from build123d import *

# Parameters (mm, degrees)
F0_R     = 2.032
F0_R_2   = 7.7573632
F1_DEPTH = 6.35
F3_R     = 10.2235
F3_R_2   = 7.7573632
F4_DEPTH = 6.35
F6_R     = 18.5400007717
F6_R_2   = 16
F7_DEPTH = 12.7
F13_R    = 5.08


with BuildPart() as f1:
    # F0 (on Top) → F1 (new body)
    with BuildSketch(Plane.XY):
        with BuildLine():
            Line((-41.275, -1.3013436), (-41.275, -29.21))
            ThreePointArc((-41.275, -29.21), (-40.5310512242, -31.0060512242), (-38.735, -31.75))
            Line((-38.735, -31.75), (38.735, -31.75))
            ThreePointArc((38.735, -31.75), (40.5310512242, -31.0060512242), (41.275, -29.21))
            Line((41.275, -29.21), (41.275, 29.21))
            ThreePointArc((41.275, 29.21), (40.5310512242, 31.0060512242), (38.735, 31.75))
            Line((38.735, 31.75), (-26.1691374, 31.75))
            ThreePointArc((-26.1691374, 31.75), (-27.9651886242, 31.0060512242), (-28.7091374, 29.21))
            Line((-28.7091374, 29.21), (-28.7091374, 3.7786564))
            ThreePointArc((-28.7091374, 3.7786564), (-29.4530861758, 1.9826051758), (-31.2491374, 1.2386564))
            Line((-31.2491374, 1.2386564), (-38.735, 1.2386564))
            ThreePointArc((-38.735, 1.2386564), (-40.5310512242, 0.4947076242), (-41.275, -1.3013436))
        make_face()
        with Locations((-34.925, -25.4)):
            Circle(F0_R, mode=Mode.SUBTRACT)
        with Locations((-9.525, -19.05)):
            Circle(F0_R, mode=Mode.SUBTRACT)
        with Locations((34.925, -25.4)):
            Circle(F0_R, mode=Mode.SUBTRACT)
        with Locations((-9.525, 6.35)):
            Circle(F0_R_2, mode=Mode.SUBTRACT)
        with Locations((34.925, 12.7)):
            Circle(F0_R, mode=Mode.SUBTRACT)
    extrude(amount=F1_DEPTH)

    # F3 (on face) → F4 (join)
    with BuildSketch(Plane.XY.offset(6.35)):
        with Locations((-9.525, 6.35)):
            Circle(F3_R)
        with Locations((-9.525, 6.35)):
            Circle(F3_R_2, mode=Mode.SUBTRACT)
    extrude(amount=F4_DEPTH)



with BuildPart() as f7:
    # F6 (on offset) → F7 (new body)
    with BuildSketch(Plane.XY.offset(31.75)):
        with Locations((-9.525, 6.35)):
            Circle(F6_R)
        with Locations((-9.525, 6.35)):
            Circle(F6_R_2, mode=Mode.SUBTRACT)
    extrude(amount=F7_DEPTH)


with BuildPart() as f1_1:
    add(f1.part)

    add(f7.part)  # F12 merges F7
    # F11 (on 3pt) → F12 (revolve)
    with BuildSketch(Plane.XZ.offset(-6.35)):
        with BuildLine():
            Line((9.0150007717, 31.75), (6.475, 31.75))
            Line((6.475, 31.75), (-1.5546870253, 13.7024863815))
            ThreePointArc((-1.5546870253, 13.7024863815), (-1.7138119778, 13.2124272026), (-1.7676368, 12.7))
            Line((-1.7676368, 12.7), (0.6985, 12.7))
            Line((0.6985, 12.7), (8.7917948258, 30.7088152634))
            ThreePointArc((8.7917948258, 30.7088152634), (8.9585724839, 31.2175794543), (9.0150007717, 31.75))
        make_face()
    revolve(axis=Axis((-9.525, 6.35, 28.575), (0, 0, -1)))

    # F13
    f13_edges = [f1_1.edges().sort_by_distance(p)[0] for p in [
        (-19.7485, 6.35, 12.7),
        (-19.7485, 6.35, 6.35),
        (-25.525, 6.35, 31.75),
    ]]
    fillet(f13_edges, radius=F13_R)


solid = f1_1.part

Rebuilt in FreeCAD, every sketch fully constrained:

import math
import FreeCAD as App
import Part
import Sketcher
from FreeCAD import Vector
Q = App.Units.Quantity


def edges_at(feature, points):
    """Names of the edges that pass closest to the given points."""
    edges = feature.Shape.Edges
    near = lambda p: min(range(len(edges)), key=lambda i: edges[i].distToShape(Part.Vertex(*p))[0])
    return sorted({f"Edge{near(p) + 1}" for p in points})

doc = App.newDocument("Part")
body = doc.addObject("PartDesign::Body", "Body")

sketch1 = doc.addObject("Sketcher::SketchObject", "Sketch")
body.addObject(sketch1)
sketch1.AttachmentSupport = (doc.XY_Plane, [""])
sketch1.MapMode = "FlatFace"
sketch1.addGeometry(Part.LineSegment(Vector(-41.3, -1.3, 0), Vector(-41.3, -29.2, 0)), False)
sketch1.addGeometry(Part.ArcOfCircle(Part.Circle(Vector(-38.7, -29.2, 0), Vector(0, 0, 1), 2.5), math.radians(180), math.radians(270)), False)
sketch1.addGeometry(Part.LineSegment(Vector(-38.7, -31.8, 0), Vector(38.7, -31.8, 0)), False)
sketch1.addGeometry(Part.ArcOfCircle(Part.Circle(Vector(38.7, -29.2, 0), Vector(0, 0, 1), 2.5), math.radians(-90), math.radians(0)), False)
sketch1.addGeometry(Part.LineSegment(Vector(41.3, -29.2, 0), Vector(41.3, 29.2, 0)), False)
sketch1.addGeometry(Part.ArcOfCircle(Part.Circle(Vector(38.7, 29.2, 0), Vector(0, 0, 1), 2.5), math.radians(0), math.radians(90)), False)
sketch1.addGeometry(Part.LineSegment(Vector(38.7, 31.8, 0), Vector(-26.2, 31.8, 0)), False)
sketch1.addGeometry(Part.ArcOfCircle(Part.Circle(Vector(-26.2, 29.2, 0), Vector(0, 0, 1), 2.5), math.radians(90), math.radians(180)), False)
sketch1.addGeometry(Part.LineSegment(Vector(-28.7, 29.2, 0), Vector(-28.7, 3.8, 0)), False)
sketch1.addGeometry(Part.ArcOfCircle(Part.Circle(Vector(-31.2, 3.8, 0), Vector(0, 0, 1), 2.5), math.radians(-90), math.radians(0)), False)
sketch1.addGeometry(Part.LineSegment(Vector(-31.2, 1.2, 0), Vector(-38.7, 1.2, 0)), False)
sketch1.addGeometry(Part.ArcOfCircle(Part.Circle(Vector(-38.7, -1.3, 0), Vector(0, 0, 1), 2.5), math.radians(90), math.radians(180)), False)
sketch1.addGeometry(Part.Circle(Vector(-34.9, -25.4, 0), Vector(0, 0, 1), 2), False)
sketch1.addGeometry(Part.Circle(Vector(-9.5, -19.1, 0), Vector(0, 0, 1), 2), False)
sketch1.addGeometry(Part.Circle(Vector(34.9, -25.4, 0), Vector(0, 0, 1), 2), False)
sketch1.addGeometry(Part.Circle(Vector(-9.5, 6.3, 0), Vector(0, 0, 1), 7.8), False)
sketch1.addGeometry(Part.Circle(Vector(34.9, 12.7, 0), Vector(0, 0, 1), 2), False)
sketch1.addConstraint(Sketcher.Constraint("Tangent", 0, 2, 1, 1))
sketch1.addConstraint(Sketcher.Constraint("Tangent", 1, 2, 2, 1))
sketch1.addConstraint(Sketcher.Constraint("Tangent", 2, 2, 3, 1))
sketch1.addConstraint(Sketcher.Constraint("Tangent", 3, 2, 4, 1))
sketch1.addConstraint(Sketcher.Constraint("Tangent", 4, 2, 5, 1))
sketch1.addConstraint(Sketcher.Constraint("Tangent", 5, 2, 6, 1))
sketch1.addConstraint(Sketcher.Constraint("Tangent", 6, 2, 7, 1))
sketch1.addConstraint(Sketcher.Constraint("Tangent", 7, 2, 8, 1))
sketch1.addConstraint(Sketcher.Constraint("Tangent", 8, 2, 9, 2))
sketch1.addConstraint(Sketcher.Constraint("Tangent", 9, 1, 10, 1))
sketch1.addConstraint(Sketcher.Constraint("Tangent", 10, 2, 11, 1))
sketch1.addConstraint(Sketcher.Constraint("Tangent", 11, 2, 0, 1))
sketch1.addConstraint(Sketcher.Constraint("Vertical", 0))
sketch1.addConstraint(Sketcher.Constraint("Horizontal", 2))
sketch1.addConstraint(Sketcher.Constraint("Vertical", 4))
sketch1.addConstraint(Sketcher.Constraint("Horizontal", 6))
sketch1.addConstraint(Sketcher.Constraint("Vertical", 8))
sketch1.addConstraint(Sketcher.Constraint("Horizontal", 10))
sketch1.addConstraint(Sketcher.Constraint("Equal", 1, 3))
sketch1.addConstraint(Sketcher.Constraint("Equal", 3, 5))
sketch1.addConstraint(Sketcher.Constraint("Equal", 5, 7))
sketch1.addConstraint(Sketcher.Constraint("Equal", 7, 9))
sketch1.addConstraint(Sketcher.Constraint("Equal", 9, 11))
sketch1.addConstraint(Sketcher.Constraint("Equal", 12, 13))
sketch1.addConstraint(Sketcher.Constraint("Equal", 13, 14))
sketch1.addConstraint(Sketcher.Constraint("Equal", 14, 16))
sketch1.addConstraint(Sketcher.Constraint("Symmetric", 1, 3, 5, 3, -1, 1))
sketch1.addConstraint(Sketcher.Constraint("Symmetric", 12, 3, 14, 3, -2))
sketch1.addConstraint(Sketcher.Constraint("Vertical", 13, 3, 15, 3))
sketch1.addConstraint(Sketcher.Constraint("Vertical", 14, 3, 16, 3))
sketch1.addConstraint(Sketcher.Constraint("Radius", 1, Q("0.1 in")))
sketch1.addConstraint(Sketcher.Constraint("Diameter", 12, Q("0.16 in")))
sketch1.addConstraint(Sketcher.Constraint("DistanceY", 4, 1, 4, 2, Q("2.3 in")))
sketch1.addConstraint(Sketcher.Constraint("DistanceY", 12, 3, -1, 1, Q("1 in")))
sketch1.addConstraint(Sketcher.Constraint("DistanceX", 12, 3, 13, 3, Q("1 in")))
sketch1.addConstraint(Sketcher.Constraint("DistanceY", 13, 3, 15, 3, Q("1 in")))
sketch1.addConstraint(Sketcher.Constraint("DistanceX", 13, 3, 3, 2, Q("2 in")))
sketch1.addConstraint(Sketcher.Constraint("DistanceY", 15, 3, 5, 2, Q("1 in")))
sketch1.addConstraint(Sketcher.Constraint("DistanceX", 2, 1, 2, 2, Q("3.05 in")))
sketch1.addConstraint(Sketcher.Constraint("DistanceY", -1, 1, 16, 3, Q("0.5 in")))
sketch1.addConstraint(Sketcher.Constraint("Diameter", 15, Q("15.514726 mm")))
sketch1.addConstraint(Sketcher.Constraint("DistanceX", 6, 2, 6, 1, Q("64.904137 mm")))
sketch1.addConstraint(Sketcher.Constraint("DistanceY", 0, 2, 0, 1, Q("27.908656 mm")))
pad1 = doc.addObject("PartDesign::Pad", "Pad")
body.addObject(pad1)
pad1.Profile = sketch1
pad1.Length = Q("0.25 in")

sketch2 = doc.addObject("Sketcher::SketchObject", "Sketch001")
body.addObject(sketch2)
sketch2.AttachmentSupport = (doc.XY_Plane, [""])
sketch2.MapMode = "FlatFace"
sketch2.AttachmentOffset = App.Placement(Vector(0, 0, 0.25 * 25.4), App.Rotation())
sketch2.addGeometry(Part.Circle(Vector(-10, 6, 0), Vector(0, 0, 1), 10), False)
sketch2.addGeometry(Part.Circle(Vector(-10, 6, 0), Vector(0, 0, 1), 8), False)
sketch2.addConstraint(Sketcher.Constraint("Coincident", 1, 3, 0, 3))
sketch2.addConstraint(Sketcher.Constraint("Diameter", 0, Q("0.805 in")))
sketch2.addConstraint(Sketcher.Constraint("DistanceY", -1, 1, 0, 3, Q("0.25 in")))
sketch2.addConstraint(Sketcher.Constraint("DistanceX", 0, 3, -1, 1, Q("0.375 in")))
sketch2.addConstraint(Sketcher.Constraint("Diameter", 1, Q("15.514726 mm")))
pad2 = doc.addObject("PartDesign::Pad", "Pad001")
body.addObject(pad2)
pad2.Profile = sketch2
pad2.Length = Q("0.25 in")
body2 = doc.addObject("PartDesign::Body", "Body001")

sketch3 = doc.addObject("Sketcher::SketchObject", "Sketch002")
body2.addObject(sketch3)
sketch3.AttachmentSupport = (doc.getObject("XY_Plane001"), [""])
sketch3.MapMode = "FlatFace"
sketch3.AttachmentOffset = App.Placement(Vector(0, 0, 1.25 * 25.4), App.Rotation())
sketch3.addGeometry(Part.Circle(Vector(-10, 6, 0), Vector(0, 0, 1), 19), False)
sketch3.addGeometry(Part.Circle(Vector(-10, 6, 0), Vector(0, 0, 1), 16), False)
sketch3.addConstraint(Sketcher.Constraint("Coincident", 1, 3, 0, 3))
sketch3.addConstraint(Sketcher.Constraint("Diameter", 0, Q("37.080002 mm")))
sketch3.addConstraint(Sketcher.Constraint("Diameter", 1, Q("32 mm")))
sketch3.addConstraint(Sketcher.Constraint("DistanceY", -1, 1, 0, 3, Q("0.25 in")))
sketch3.addConstraint(Sketcher.Constraint("DistanceX", 0, 3, -1, 1, Q("0.375 in")))
pad3 = doc.addObject("PartDesign::Pad", "Pad002")
body2.addObject(pad3)
pad3.Profile = sketch3
pad3.Length = Q("0.5 in")
body.AllowCompound = True
doc.recompute()

boolean = doc.addObject("PartDesign::Boolean", "Boolean")
body.addObject(boolean)
boolean.Type = "Fuse"
boolean.addObjects([body2])

sketch4 = doc.addObject("Sketcher::SketchObject", "Sketch003")
body.addObject(sketch4)
sketch4.AttachmentSupport = (doc.XZ_Plane, [""])
sketch4.MapMode = "FlatFace"
sketch4.AttachmentOffset = App.Placement(Vector(0, 0, -0.25 * 25.4), App.Rotation())
sketch4.addGeometry(Part.LineSegment(Vector(9, 31.8, 0), Vector(6.5, 31.8, 0)), False)
sketch4.addGeometry(Part.LineSegment(Vector(6.5, 31.8, 0), Vector(-1.6, 13.7, 0)), False)
sketch4.addGeometry(Part.ArcOfCircle(Part.Circle(Vector(0.7, 12.7, 0), Vector(0, 0, 1), 2.5), math.radians(156), math.radians(180)), False)
sketch4.addGeometry(Part.LineSegment(Vector(-1.8, 12.7, 0), Vector(0.7, 12.7, 0)), False)
sketch4.addGeometry(Part.LineSegment(Vector(0.7, 12.7, 0), Vector(8.8, 30.7, 0)), False)
sketch4.addGeometry(Part.ArcOfCircle(Part.Circle(Vector(6.5, 31.8, 0), Vector(0, 0, 1), 2.5), math.radians(-24), math.radians(0)), False)
sketch4.addGeometry(Part.LineSegment(Vector(-9.5, 31.8, 0), Vector(-9.5, 12.7, 0)), True)
sketch4.addConstraint(Sketcher.Constraint("Coincident", 0, 2, 1, 1))
sketch4.addConstraint(Sketcher.Constraint("Tangent", 1, 2, 2, 1))
sketch4.addConstraint(Sketcher.Constraint("Coincident", 2, 2, 3, 1))
sketch4.addConstraint(Sketcher.Constraint("Coincident", 3, 2, 4, 1))
sketch4.addConstraint(Sketcher.Constraint("Tangent", 4, 2, 5, 1))
sketch4.addConstraint(Sketcher.Constraint("Coincident", 5, 2, 0, 1))
sketch4.addConstraint(Sketcher.Constraint("Horizontal", 0))
sketch4.addConstraint(Sketcher.Constraint("Horizontal", 3))
sketch4.addConstraint(Sketcher.Constraint("Vertical", 6))
sketch4.addConstraint(Sketcher.Constraint("Coincident", 0, 2, 5, 3))
sketch4.addConstraint(Sketcher.Constraint("Coincident", 3, 2, 2, 3))
sketch4.addConstraint(Sketcher.Constraint("Horizontal", 5, 2, 6, 1))
sketch4.addConstraint(Sketcher.Constraint("Horizontal", 3, 2, 6, 2))
sketch4.addConstraint(Sketcher.Constraint("Radius", 5, Q("0.1 in")))
sketch4.addConstraint(Sketcher.Constraint("DistanceY", 6, 2, 6, 1, Q("0.75 in")))
sketch4.addConstraint(Sketcher.Constraint("DistanceY", -1, 1, 2, 3, Q("0.5 in")))
sketch4.addConstraint(Sketcher.Constraint("DistanceX", 6, 1, -1, 1, Q("0.375 in")))
sketch4.addConstraint(Sketcher.Constraint("DistanceX", -1, 1, 2, 3, Q("0.0275 in")))
sketch4.addConstraint(Sketcher.Constraint("Radius", 2, Q("2.466137 mm")))
sketch4.addConstraint(Sketcher.Constraint("DistanceX", -1, 1, 5, 3, Q("6.475 mm")))
revolution = doc.addObject("PartDesign::Revolution", "Revolution")
body.addObject(revolution)
revolution.Profile = sketch4
revolution.ReferenceAxis = (sketch4, ["Axis0"])
revolution.Angle = 360
doc.recompute()

fillet = doc.addObject("PartDesign::Fillet", "Fillet")
body.addObject(fillet)
fillet.Base = (revolution, edges_at(revolution, [(-19.748, 6.35, 12.7), (-19.748, 6.35, 6.35), (-25.525, 6.35, 31.75)]))
fillet.Radius = Q("0.2 in")

doc.recompute()
